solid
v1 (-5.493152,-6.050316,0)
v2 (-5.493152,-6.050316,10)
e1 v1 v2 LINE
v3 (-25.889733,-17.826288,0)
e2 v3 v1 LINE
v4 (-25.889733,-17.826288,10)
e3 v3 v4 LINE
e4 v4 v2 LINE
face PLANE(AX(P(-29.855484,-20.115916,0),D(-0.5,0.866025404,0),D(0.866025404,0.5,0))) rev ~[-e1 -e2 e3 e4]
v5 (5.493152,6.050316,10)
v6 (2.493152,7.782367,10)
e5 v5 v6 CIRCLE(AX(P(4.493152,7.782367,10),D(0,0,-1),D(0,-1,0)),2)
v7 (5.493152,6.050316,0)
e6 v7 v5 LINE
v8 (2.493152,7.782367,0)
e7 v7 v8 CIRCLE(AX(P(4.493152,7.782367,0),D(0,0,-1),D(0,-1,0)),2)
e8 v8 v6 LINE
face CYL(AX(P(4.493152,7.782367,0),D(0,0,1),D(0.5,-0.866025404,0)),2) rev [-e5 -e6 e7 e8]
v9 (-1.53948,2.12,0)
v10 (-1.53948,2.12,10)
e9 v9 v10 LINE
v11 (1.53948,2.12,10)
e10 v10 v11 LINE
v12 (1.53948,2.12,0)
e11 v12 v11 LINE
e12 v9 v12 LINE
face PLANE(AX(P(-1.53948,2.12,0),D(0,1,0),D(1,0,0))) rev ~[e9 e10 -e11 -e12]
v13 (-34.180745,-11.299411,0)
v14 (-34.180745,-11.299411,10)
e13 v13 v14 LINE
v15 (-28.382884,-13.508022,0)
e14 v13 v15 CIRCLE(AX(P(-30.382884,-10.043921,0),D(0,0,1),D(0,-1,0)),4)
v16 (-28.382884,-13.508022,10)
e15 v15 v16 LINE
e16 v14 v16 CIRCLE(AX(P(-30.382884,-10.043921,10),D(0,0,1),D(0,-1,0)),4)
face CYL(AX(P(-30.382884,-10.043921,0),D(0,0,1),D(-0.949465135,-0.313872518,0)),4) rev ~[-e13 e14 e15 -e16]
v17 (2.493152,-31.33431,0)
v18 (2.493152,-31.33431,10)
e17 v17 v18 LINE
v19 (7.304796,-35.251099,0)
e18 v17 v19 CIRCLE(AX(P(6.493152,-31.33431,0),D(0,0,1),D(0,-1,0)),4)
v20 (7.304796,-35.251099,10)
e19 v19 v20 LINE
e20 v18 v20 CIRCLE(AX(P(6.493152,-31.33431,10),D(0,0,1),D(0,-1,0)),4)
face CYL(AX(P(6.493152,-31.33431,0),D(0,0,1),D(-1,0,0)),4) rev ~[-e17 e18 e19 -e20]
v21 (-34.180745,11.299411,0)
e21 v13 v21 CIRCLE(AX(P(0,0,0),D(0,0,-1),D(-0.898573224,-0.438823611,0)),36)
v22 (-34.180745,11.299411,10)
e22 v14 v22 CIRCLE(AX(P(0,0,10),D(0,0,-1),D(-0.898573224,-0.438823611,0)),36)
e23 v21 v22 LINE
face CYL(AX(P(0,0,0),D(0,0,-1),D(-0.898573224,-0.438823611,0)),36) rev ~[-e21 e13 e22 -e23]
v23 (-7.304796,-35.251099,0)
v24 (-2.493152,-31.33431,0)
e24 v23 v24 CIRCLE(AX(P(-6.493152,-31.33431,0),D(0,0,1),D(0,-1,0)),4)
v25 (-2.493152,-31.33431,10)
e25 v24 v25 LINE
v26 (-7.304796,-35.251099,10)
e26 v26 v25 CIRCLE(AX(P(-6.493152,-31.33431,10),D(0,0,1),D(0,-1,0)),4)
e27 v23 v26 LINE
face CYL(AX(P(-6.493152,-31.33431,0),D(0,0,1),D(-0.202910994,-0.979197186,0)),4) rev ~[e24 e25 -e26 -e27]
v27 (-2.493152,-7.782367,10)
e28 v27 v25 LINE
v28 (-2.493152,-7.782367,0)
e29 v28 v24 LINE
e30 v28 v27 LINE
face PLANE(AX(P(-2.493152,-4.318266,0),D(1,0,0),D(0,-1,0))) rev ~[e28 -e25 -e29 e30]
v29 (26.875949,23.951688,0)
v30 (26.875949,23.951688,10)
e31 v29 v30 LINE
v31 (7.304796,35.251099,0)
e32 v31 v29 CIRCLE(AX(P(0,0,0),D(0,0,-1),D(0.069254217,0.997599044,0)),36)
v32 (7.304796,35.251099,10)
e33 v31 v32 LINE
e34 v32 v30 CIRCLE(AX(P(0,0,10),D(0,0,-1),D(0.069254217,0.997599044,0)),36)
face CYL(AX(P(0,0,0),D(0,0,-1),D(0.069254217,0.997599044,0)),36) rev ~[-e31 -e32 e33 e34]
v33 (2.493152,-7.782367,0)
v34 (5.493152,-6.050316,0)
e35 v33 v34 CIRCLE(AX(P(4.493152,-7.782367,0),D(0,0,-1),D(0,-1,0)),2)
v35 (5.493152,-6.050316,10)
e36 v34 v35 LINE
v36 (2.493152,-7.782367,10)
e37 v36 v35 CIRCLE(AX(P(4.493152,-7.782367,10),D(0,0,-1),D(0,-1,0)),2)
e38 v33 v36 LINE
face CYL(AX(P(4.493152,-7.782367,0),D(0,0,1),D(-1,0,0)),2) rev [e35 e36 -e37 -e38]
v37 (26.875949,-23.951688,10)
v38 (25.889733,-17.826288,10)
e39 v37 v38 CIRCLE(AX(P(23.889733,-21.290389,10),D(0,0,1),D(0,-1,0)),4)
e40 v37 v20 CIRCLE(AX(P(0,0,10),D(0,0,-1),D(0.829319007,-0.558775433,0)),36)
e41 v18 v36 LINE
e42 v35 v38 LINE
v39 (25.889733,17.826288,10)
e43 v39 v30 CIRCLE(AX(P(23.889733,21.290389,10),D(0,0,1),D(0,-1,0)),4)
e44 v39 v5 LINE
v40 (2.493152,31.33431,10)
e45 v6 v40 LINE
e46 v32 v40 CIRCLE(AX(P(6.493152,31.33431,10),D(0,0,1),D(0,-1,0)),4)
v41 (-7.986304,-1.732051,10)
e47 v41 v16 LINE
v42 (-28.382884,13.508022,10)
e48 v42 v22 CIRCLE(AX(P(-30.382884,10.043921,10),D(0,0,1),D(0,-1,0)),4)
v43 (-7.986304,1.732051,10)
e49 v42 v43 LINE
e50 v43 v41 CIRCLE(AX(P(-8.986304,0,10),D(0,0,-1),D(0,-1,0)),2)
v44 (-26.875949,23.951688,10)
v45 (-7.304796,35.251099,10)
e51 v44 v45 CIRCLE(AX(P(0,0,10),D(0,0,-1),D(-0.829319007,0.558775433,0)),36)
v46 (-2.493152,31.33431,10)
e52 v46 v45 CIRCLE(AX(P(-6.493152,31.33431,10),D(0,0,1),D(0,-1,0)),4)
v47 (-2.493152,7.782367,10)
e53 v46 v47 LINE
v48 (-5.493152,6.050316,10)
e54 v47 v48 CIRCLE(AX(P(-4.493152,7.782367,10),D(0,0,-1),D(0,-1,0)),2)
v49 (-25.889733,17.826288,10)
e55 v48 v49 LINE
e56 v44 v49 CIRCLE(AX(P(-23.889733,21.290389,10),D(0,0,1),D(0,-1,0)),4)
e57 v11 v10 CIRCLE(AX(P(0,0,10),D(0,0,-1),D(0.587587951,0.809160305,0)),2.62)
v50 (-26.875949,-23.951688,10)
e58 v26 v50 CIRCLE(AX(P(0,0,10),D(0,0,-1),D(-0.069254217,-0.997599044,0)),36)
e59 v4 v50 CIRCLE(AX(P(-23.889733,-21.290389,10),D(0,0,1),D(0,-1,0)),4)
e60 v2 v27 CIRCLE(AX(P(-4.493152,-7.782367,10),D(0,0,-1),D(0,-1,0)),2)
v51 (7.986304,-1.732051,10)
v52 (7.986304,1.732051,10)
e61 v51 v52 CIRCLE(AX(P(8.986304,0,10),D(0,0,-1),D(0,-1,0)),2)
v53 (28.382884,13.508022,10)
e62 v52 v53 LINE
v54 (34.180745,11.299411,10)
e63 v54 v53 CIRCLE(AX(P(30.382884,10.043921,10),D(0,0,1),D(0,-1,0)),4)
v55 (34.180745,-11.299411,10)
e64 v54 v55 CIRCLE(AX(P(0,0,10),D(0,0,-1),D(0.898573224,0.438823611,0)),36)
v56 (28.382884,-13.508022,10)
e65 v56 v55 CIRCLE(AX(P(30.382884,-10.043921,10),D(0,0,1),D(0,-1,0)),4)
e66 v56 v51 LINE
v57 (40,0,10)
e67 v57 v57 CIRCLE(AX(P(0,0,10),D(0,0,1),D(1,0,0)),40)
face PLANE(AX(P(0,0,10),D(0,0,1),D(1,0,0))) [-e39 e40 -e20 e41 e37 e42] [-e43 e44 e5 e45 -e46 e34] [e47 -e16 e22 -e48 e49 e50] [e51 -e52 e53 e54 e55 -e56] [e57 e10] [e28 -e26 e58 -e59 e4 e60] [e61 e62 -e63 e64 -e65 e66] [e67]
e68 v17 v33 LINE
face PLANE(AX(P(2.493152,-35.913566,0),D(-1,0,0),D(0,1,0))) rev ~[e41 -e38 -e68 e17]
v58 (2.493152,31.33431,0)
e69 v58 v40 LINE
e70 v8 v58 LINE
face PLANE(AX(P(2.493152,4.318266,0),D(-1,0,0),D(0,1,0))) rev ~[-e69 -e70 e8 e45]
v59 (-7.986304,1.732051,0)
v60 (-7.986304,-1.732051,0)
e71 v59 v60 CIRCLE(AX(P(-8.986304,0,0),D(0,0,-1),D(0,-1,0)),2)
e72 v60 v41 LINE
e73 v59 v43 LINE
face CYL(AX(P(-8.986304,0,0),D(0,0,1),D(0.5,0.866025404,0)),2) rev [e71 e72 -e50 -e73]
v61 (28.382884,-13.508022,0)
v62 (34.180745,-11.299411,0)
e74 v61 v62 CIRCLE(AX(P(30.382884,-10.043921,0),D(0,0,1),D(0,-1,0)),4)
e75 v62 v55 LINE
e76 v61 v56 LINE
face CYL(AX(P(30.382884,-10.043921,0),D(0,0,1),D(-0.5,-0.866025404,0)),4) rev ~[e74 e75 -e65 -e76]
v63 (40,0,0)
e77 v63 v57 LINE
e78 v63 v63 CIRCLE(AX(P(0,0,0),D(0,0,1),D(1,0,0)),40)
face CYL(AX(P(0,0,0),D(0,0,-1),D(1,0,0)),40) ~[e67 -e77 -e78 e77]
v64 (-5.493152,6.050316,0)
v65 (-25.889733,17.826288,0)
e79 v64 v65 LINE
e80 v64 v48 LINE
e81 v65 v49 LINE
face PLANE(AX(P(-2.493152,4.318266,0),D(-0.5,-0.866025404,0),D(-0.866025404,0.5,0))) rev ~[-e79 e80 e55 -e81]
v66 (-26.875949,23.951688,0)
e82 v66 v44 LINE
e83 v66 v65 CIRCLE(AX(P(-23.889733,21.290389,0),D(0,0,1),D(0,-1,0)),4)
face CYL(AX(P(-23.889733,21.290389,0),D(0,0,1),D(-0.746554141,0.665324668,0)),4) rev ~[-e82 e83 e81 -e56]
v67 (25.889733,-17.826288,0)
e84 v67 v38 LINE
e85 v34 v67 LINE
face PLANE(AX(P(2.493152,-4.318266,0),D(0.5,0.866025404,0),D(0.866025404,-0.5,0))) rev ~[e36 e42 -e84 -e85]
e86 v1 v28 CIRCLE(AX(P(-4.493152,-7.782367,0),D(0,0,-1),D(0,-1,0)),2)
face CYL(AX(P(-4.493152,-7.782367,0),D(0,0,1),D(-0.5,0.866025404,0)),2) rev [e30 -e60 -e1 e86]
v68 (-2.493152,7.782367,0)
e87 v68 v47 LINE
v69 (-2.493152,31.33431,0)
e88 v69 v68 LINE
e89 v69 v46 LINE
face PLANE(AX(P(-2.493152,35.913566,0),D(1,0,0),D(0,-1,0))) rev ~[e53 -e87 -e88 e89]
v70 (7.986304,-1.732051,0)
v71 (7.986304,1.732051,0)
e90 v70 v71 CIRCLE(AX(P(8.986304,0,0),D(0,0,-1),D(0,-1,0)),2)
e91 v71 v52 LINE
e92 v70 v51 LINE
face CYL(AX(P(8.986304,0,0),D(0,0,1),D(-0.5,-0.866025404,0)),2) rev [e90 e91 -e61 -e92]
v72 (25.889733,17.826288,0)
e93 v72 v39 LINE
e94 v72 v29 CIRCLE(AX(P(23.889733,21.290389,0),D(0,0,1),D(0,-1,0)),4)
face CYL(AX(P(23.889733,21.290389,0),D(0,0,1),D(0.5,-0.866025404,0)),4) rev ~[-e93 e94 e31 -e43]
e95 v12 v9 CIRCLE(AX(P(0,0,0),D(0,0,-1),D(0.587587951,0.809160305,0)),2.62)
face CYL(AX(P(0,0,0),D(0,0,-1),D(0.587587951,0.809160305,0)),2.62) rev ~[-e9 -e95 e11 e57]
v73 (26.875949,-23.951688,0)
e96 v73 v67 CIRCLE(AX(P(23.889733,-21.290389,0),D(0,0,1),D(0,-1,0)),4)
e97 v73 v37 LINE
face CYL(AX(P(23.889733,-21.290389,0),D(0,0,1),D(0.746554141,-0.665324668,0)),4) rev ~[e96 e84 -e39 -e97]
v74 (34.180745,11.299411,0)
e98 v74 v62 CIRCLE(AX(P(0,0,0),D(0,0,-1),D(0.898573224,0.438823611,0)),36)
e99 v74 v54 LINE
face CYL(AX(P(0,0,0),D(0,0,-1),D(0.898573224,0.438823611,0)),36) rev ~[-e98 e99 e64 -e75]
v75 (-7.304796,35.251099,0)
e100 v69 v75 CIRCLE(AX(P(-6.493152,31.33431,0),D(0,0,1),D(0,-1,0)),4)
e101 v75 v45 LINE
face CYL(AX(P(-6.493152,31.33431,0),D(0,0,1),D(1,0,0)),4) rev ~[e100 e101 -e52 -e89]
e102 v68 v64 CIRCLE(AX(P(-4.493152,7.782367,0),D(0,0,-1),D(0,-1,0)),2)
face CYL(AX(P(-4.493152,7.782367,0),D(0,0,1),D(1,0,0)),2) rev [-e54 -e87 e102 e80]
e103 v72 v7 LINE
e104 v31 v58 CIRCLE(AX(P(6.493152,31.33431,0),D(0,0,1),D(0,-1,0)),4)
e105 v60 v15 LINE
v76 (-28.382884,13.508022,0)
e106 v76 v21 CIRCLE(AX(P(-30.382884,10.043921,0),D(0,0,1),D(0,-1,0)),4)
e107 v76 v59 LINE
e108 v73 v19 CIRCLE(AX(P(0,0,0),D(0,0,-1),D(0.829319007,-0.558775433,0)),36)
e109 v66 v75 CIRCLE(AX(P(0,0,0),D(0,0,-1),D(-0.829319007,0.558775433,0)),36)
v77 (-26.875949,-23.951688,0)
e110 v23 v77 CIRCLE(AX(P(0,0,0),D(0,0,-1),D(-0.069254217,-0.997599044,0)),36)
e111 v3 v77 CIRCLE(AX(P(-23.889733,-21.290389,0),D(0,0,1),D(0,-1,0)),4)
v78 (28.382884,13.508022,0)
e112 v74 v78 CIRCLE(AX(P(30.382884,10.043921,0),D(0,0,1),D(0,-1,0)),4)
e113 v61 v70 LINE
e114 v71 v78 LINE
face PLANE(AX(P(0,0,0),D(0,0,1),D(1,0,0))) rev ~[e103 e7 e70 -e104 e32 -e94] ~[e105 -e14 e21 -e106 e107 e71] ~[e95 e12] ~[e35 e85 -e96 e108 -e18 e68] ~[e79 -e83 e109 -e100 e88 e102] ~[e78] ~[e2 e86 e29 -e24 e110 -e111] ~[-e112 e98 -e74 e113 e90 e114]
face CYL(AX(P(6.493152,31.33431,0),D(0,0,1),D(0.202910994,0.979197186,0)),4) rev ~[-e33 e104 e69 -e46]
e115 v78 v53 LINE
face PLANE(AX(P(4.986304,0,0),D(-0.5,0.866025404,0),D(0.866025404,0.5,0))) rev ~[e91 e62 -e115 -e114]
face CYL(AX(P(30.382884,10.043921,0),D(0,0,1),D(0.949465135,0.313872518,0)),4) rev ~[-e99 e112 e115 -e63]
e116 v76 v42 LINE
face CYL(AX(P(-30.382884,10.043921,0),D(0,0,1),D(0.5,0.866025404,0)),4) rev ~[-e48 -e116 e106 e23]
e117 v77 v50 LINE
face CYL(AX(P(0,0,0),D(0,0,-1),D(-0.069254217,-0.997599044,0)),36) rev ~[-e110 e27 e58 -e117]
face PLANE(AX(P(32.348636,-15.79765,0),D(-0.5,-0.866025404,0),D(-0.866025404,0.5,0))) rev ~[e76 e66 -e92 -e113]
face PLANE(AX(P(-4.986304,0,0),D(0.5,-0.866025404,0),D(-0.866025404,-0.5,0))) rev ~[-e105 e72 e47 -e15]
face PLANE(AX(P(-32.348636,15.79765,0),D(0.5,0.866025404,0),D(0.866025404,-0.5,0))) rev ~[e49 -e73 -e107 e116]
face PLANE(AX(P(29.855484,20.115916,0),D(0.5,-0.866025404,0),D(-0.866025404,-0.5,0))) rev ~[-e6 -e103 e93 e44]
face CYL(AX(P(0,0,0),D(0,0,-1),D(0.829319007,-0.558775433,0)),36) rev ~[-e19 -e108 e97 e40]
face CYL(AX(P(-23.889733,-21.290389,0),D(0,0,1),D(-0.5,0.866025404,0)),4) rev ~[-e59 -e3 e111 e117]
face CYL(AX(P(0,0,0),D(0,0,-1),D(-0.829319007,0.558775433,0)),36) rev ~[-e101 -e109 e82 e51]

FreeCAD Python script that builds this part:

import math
import FreeCAD as App
import Part
import Sketcher
from FreeCAD import Vector
Q = App.Units.Quantity


def edges_at(feature, points):
    """Names of the edges that pass closest to the given points."""
    edges = feature.Shape.Edges
    near = lambda p: min(range(len(edges)), key=lambda i: edges[i].distToShape(Part.Vertex(*p))[0])
    return sorted({f"Edge{near(p) + 1}" for p in points})

doc = App.newDocument("Part")
body = doc.addObject("PartDesign::Body", "Body")

# Sketch on XY plane
sketch1 = body.newObject("Sketcher::SketchObject", "Sketch")
sketch1.AttachmentSupport = (doc.getObject("XY_Plane"), [""])
sketch1.MapMode = "FlatFace"
sketch1.addGeometry([
    Part.Circle(Vector(0, 0, 0), Vector(0, 0, 1), 40),  # 0
    Part.LineSegment(Vector(-29.9, -20.1, 0), Vector(-2.5, -4.3, 0)),  # 1
    Part.LineSegment(Vector(-2.5, -4.3, 0), Vector(-2.5, -35.9, 0)),  # 2
    Part.ArcOfCircle(Part.Circle(Vector(0, 0, 0), Vector(0, 0, 1), 36), math.radians(-146), math.radians(-94)),  # 3
    Part.LineSegment(Vector(2.5, -35.9, 0), Vector(2.5, -4.3, 0)),  # 4
    Part.LineSegment(Vector(2.5, -4.3, 0), Vector(29.9, -20.1, 0)),  # 5
    Part.ArcOfCircle(Part.Circle(Vector(0, 0, 0), Vector(0, 0, 1), 36), math.radians(-86), math.radians(-34)),  # 6
    Part.LineSegment(Vector(-1.5, 2.1, 0), Vector(1.5, 2.1, 0)),  # 7
    Part.ArcOfCircle(Part.Circle(Vector(0, 0, 0), Vector(0, 0, 1), 2.6), math.radians(126), math.radians(414)),  # 8
    Part.LineSegment(Vector(-32.3, 15.8, 0), Vector(-5, 0, 0)),  # 9
    Part.LineSegment(Vector(-5, 0, 0), Vector(-32.3, -15.8, 0)),  # 10
    Part.ArcOfCircle(Part.Circle(Vector(0, 0, 0), Vector(0, 0, 1), 36), math.radians(154), math.radians(206)),  # 11
    Part.LineSegment(Vector(-2.5, 35.9, 0), Vector(-2.5, 4.3, 0)),  # 12
    Part.LineSegment(Vector(-2.5, 4.3, 0), Vector(-29.9, 20.1, 0)),  # 13
    Part.ArcOfCircle(Part.Circle(Vector(0, 0, 0), Vector(0, 0, 1), 36), math.radians(94), math.radians(146)),  # 14
    Part.LineSegment(Vector(32.3, -15.8, 0), Vector(5, 0, 0)),  # 15
    Part.LineSegment(Vector(5, 0, 0), Vector(32.3, 15.8, 0)),  # 16
    Part.ArcOfCircle(Part.Circle(Vector(0, 0, 0), Vector(0, 0, 1), 36), math.radians(-26), math.radians(26)),  # 17
    Part.LineSegment(Vector(29.9, 20.1, 0), Vector(2.5, 4.3, 0)),  # 18
    Part.LineSegment(Vector(2.5, 4.3, 0), Vector(2.5, 35.9, 0)),  # 19
    Part.ArcOfCircle(Part.Circle(Vector(0, 0, 0), Vector(0, 0, 1), 36), math.radians(34), math.radians(86)),  # 20
], False)
sketch1.addConstraint([
    Sketcher.Constraint("Coincident", 1, 2, 2, 1),
    Sketcher.Constraint("Coincident", 2, 2, 3, 2),
    Sketcher.Constraint("Coincident", 3, 1, 1, 1),
    Sketcher.Constraint("Coincident", 4, 2, 5, 1),
    Sketcher.Constraint("Coincident", 5, 2, 6, 2),
    Sketcher.Constraint("Coincident", 6, 1, 4, 1),
    Sketcher.Constraint("Coincident", 7, 1, 8, 1),
    Sketcher.Constraint("Coincident", 8, 2, 7, 2),
    Sketcher.Constraint("Coincident", 9, 2, 10, 1),
    Sketcher.Constraint("Coincident", 10, 2, 11, 2),
    Sketcher.Constraint("Coincident", 11, 1, 9, 1),
    Sketcher.Constraint("Coincident", 12, 2, 13, 1),
    Sketcher.Constraint("Coincident", 13, 2, 14, 2),
    Sketcher.Constraint("Coincident", 14, 1, 12, 1),
    Sketcher.Constraint("Coincident", 15, 2, 16, 1),
    Sketcher.Constraint("Coincident", 16, 2, 17, 2),
    Sketcher.Constraint("Coincident", 17, 1, 15, 1),
    Sketcher.Constraint("Coincident", 18, 2, 19, 1),
    Sketcher.Constraint("Coincident", 19, 2, 20, 2),
    Sketcher.Constraint("Coincident", 20, 1, 18, 1),
    Sketcher.Constraint("Vertical", 2),
    Sketcher.Constraint("Vertical", 4),
    Sketcher.Constraint("Horizontal", 7),
    Sketcher.Constraint("Vertical", 12),
    Sketcher.Constraint("Vertical", 19),
    Sketcher.Constraint("Coincident", 0, 3, -1, 1),
    Sketcher.Constraint("Coincident", 3, 3, -1, 1),
    Sketcher.Constraint("Coincident", 6, 3, -1, 1),
    Sketcher.Constraint("Coincident", 8, 3, -1, 1),
    Sketcher.Constraint("Coincident", 11, 3, -1, 1),
    Sketcher.Constraint("Coincident", 14, 3, -1, 1),
    Sketcher.Constraint("Coincident", 17, 3, -1, 1),
    Sketcher.Constraint("Coincident", 20, 3, -1, 1),
    Sketcher.Constraint("Equal", 3, 6),
    Sketcher.Constraint("Equal", 6, 11),
    Sketcher.Constraint("Equal", 11, 14),
    Sketcher.Constraint("Equal", 14, 17),
    Sketcher.Constraint("Equal", 17, 20),
    Sketcher.Constraint("Symmetric", 4, 2, 12, 2, -1, 1),
    Sketcher.Constraint("Symmetric", 9, 2, 15, 2, -1, 1),
    Sketcher.Constraint("Symmetric", 1, 2, 18, 2, -1, 1),
    Sketcher.Constraint("Symmetric", 1, 2, 4, 2, -2),
    Sketcher.Constraint("PointOnObject", 9, 2, -1),
    Sketcher.Constraint("Parallel", 5, 9),
    Sketcher.Constraint("Parallel", 1, 10),
    Sketcher.Constraint("Parallel", 9, 13),
    Sketcher.Constraint("Parallel", 13, 15),
    Sketcher.Constraint("Parallel", 10, 16),
    Sketcher.Constraint("Parallel", 16, 18),
    Sketcher.Constraint("Horizontal", 3, 1, 5, 2),
    Sketcher.Constraint("Equal", 5, 9),
    Sketcher.Constraint("Diameter", 0, Q("80 mm")),
    Sketcher.Constraint("Radius", 3, Q("36 mm")),
    Sketcher.Constraint("Angle", 1, Q("30 deg")),
    Sketcher.Constraint("Radius", 8, Q("2.62 mm")),
    Sketcher.Constraint("DistanceY", -1, 1, 7, 1, Q("2.12 mm")),
    Sketcher.Constraint("DistanceY", 2, 2, 2, 1, Q("31.5953 mm")),
    Sketcher.Constraint("Distance", 1, Q("31.5953 mm")),
])
pad1 = body.newObject("PartDesign::Pad", "Pad")
pad1.Profile = sketch1
pad1.Length = 10
doc.recompute()

fillet = body.newObject("PartDesign::Fillet", "Fillet")
fillet.Base = (pad1, edges_at(pad1, [
    (4.986, 0, 5),
    (2.493, -4.318, 5),
    (-2.493, -4.318, 5),
    (-4.986, 0, 5),
    (-2.493, 4.318, 5),
    (2.493, 4.318, 5),
]))
fillet.Radius = 2
doc.recompute()

fillet2 = body.newObject("PartDesign::Fillet", "Fillet001")
fillet2.Base = (fillet, edges_at(fillet, [
    (32.349, 15.798, 5),
    (32.349, -15.798, 5),
    (29.855, -20.116, 5),
    (2.493, -35.914, 5),
    (-2.493, -35.914, 5),
    (-29.855, -20.116, 5),
    (-32.349, -15.798, 5),
    (-32.349, 15.798, 5),
    (-29.855, 20.116, 5),
    (-2.493, 35.914, 5),
    (2.493, 35.914, 5),
    (29.855, 20.116, 5),
]))
fillet2.Radius = 4

doc.recompute()
